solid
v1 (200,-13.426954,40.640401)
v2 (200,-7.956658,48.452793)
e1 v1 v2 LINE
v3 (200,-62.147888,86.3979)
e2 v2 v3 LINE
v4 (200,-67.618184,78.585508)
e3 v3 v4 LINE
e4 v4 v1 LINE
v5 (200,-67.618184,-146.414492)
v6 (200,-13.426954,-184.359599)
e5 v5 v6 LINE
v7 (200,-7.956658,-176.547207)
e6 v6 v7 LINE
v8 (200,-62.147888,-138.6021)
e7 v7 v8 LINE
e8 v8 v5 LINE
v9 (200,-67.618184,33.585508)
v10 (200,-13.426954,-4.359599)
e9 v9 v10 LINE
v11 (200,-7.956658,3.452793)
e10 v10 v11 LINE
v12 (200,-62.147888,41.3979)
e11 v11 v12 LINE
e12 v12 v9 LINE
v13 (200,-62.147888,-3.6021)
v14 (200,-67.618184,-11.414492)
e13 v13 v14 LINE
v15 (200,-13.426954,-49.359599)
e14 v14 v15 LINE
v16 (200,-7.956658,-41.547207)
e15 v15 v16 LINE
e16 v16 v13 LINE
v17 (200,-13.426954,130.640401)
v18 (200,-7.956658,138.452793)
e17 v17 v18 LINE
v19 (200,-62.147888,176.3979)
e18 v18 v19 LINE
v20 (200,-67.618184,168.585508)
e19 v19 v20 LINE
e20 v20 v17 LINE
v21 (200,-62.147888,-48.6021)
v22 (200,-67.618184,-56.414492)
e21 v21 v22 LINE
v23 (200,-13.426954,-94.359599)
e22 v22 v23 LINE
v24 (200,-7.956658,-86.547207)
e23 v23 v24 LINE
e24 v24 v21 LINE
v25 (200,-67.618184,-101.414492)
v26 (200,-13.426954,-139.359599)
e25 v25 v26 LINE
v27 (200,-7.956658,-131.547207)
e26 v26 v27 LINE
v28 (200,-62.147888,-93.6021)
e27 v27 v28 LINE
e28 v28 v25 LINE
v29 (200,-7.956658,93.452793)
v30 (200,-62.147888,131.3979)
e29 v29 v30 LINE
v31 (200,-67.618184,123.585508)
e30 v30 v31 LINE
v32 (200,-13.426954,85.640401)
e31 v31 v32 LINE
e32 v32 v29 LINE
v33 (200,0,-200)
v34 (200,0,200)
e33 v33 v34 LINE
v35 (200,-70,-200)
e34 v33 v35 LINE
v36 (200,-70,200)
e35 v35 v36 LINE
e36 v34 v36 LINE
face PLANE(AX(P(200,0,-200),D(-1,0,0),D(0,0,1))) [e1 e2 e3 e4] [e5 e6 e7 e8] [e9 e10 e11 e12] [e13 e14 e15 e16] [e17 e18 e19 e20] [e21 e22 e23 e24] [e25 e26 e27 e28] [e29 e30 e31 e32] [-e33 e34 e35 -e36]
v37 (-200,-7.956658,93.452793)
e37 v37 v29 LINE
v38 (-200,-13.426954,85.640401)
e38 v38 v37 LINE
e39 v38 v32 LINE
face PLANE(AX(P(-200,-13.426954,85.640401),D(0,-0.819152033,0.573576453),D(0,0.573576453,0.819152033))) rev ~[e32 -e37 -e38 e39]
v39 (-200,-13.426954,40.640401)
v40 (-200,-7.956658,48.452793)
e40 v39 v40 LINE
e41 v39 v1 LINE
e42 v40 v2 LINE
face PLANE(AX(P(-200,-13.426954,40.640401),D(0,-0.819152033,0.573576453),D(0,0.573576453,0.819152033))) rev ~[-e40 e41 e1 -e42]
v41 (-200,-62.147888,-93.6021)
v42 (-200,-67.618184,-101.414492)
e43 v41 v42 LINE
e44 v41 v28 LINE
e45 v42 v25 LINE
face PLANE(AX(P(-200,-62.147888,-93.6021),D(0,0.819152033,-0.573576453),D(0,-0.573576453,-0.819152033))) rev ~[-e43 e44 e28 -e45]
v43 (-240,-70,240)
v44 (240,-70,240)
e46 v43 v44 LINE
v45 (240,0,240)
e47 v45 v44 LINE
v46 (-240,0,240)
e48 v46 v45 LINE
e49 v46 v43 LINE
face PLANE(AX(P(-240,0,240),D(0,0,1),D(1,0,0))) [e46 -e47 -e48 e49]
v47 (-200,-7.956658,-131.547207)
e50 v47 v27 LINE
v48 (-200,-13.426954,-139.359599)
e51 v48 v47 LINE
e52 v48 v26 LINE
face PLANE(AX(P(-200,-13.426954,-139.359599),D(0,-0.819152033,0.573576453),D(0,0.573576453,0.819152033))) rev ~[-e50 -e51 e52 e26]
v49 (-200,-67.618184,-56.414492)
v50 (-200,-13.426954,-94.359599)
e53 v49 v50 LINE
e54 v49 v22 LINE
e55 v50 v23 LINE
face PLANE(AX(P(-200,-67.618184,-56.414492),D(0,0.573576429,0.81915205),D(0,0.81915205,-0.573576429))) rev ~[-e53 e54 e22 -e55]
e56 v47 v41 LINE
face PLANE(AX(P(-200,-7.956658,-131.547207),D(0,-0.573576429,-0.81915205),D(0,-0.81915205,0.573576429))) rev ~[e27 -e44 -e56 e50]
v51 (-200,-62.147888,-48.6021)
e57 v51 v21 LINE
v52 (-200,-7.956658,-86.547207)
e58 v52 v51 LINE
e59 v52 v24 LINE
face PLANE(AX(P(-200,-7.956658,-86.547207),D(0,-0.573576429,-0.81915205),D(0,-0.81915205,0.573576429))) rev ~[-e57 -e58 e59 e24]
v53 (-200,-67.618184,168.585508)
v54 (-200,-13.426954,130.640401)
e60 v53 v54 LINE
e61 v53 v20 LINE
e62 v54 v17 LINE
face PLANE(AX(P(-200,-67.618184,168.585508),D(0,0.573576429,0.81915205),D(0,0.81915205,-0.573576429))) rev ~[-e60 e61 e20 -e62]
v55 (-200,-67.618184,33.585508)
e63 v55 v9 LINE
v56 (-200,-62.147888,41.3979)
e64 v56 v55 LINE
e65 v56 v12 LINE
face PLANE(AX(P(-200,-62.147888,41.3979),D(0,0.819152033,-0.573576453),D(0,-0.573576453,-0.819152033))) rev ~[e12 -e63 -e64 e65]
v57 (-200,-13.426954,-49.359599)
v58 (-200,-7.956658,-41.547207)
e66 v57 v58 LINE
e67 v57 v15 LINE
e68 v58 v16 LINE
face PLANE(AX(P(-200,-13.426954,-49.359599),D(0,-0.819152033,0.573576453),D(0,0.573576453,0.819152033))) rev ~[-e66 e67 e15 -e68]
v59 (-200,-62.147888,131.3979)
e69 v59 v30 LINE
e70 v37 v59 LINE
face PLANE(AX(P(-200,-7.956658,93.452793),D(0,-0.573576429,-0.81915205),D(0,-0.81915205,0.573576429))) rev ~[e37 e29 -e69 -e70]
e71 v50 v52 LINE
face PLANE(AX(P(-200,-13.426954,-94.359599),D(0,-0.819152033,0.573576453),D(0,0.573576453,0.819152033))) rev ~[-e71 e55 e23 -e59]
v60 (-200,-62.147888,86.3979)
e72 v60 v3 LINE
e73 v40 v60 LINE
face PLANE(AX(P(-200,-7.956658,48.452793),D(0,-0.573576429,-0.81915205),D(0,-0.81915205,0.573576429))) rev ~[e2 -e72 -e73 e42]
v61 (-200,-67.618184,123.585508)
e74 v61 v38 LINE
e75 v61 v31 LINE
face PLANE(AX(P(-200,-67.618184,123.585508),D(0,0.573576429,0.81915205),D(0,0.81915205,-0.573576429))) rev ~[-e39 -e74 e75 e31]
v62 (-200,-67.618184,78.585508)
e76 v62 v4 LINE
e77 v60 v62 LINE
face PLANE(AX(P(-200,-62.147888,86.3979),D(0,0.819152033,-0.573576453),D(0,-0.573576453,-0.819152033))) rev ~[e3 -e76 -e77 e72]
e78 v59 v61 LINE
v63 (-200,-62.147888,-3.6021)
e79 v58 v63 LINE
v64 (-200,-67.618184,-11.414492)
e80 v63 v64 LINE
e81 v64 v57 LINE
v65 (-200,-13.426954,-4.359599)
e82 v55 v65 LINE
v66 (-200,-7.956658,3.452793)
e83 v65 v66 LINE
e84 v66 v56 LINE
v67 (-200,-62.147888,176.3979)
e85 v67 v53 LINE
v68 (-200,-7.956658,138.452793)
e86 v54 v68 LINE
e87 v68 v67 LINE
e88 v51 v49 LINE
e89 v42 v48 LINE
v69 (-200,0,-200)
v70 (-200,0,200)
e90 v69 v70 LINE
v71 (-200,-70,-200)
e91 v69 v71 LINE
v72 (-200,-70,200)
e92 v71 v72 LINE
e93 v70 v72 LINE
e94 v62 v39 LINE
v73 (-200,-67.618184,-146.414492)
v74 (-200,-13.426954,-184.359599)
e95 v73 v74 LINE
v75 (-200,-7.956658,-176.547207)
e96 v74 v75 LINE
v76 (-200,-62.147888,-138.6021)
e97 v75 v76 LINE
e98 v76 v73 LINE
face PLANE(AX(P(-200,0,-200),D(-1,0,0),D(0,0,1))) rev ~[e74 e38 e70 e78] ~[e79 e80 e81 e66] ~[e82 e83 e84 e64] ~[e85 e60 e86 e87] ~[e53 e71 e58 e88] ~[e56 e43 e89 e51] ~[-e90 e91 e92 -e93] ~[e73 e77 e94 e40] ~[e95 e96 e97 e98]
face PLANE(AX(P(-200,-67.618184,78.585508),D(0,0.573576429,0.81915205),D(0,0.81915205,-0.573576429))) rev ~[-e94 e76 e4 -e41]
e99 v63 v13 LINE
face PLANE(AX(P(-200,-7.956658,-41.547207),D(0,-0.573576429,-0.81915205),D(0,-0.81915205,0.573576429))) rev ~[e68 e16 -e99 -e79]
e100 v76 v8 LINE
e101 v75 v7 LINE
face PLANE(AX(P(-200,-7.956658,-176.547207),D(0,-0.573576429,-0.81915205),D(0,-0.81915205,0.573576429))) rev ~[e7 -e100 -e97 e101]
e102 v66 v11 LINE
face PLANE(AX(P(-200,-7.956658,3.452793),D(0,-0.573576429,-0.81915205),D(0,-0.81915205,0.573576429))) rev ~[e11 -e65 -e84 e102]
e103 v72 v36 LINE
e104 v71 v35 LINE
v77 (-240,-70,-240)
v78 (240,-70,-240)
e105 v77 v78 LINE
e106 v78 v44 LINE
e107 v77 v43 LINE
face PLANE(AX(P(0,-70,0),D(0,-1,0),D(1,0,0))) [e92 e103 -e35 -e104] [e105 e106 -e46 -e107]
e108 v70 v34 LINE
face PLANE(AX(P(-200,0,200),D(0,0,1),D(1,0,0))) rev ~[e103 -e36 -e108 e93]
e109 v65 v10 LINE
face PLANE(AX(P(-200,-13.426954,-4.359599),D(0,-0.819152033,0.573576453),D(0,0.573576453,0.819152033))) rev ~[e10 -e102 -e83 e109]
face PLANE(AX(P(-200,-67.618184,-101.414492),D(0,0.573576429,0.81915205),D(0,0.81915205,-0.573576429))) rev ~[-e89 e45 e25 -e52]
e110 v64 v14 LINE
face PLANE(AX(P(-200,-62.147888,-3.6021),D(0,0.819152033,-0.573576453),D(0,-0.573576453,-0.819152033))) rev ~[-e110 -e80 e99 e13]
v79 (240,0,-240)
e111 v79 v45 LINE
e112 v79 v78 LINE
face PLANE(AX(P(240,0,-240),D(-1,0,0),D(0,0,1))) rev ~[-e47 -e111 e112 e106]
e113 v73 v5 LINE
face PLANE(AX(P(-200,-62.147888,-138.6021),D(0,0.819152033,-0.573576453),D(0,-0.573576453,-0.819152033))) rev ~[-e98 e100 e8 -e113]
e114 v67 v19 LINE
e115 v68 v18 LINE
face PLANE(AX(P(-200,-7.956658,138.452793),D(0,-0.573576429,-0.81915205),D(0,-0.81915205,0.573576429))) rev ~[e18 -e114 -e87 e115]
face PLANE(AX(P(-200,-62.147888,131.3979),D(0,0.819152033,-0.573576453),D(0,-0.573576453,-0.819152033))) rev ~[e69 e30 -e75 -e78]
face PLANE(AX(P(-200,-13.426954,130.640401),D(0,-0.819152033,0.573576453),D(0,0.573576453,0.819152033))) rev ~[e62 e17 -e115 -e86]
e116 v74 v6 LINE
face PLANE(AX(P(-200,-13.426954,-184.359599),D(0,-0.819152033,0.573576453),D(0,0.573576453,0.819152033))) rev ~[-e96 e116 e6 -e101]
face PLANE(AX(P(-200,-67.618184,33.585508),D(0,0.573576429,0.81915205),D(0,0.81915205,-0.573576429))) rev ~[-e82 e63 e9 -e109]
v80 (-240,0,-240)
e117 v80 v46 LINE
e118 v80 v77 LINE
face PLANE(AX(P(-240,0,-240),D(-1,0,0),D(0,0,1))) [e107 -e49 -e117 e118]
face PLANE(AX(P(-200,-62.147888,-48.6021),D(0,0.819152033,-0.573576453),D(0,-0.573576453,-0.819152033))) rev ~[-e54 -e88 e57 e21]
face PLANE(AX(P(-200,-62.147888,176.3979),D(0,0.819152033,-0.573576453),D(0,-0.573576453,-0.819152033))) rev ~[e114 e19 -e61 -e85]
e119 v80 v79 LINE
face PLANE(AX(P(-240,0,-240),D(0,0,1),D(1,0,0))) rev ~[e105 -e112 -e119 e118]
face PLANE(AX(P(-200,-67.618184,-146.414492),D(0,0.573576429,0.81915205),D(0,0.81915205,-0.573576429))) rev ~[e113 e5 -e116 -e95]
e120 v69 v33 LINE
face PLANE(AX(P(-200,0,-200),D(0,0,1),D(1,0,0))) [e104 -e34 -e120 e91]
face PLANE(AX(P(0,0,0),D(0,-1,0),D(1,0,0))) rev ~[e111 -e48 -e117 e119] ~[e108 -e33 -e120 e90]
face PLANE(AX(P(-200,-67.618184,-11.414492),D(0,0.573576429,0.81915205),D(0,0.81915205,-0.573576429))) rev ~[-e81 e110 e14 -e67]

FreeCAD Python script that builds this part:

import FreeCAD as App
import Part
import Sketcher
Q = App.Units.Quantity


def add_polygon(sketch, points):
    """Adds a closed chain of lines whose ends are joined by coincident constraints."""
    first, n = sketch.GeometryCount, len(points)
    for a, b in zip(points, points[1:] + points[:1]):
        sketch.addGeometry(Part.LineSegment(App.Vector(*a, 0), App.Vector(*b, 0)), False)
    for i in range(n):
        sketch.addConstraint(Sketcher.Constraint("Coincident", first + i, 2, first + (i + 1) % n, 1))

doc = App.newDocument("Part")
body = doc.addObject("PartDesign::Body", "Body")

sketch1 = body.newObject("Sketcher::SketchObject", "Sketch")
sketch1.AttachmentSupport = (doc.getObject("XZ_Plane"), [""])
sketch1.MapMode = "FlatFace"
add_polygon(sketch1, [(-240, 240), (-240, -240), (240, -240), (240, 240)])
add_polygon(sketch1, [(200, -200), (-200, -200), (-200, 200), (200, 200)])
sketch1.addConstraint(Sketcher.Constraint("Vertical", 0))
sketch1.addConstraint(Sketcher.Constraint("Horizontal", 1))
sketch1.addConstraint(Sketcher.Constraint("Vertical", 2))
sketch1.addConstraint(Sketcher.Constraint("Horizontal", 3))
sketch1.addConstraint(Sketcher.Constraint("Horizontal", 4))
sketch1.addConstraint(Sketcher.Constraint("Vertical", 5))
sketch1.addConstraint(Sketcher.Constraint("Horizontal", 6))
sketch1.addConstraint(Sketcher.Constraint("Vertical", 7))
sketch1.addConstraint(Sketcher.Constraint("Symmetric", 0, 2, 2, 2, -1, 1))
sketch1.addConstraint(Sketcher.Constraint("Symmetric", 4, 2, 6, 2, -1, 1))
sketch1.addConstraint(Sketcher.Constraint("Equal", 3, 0))
sketch1.addConstraint(Sketcher.Constraint("Equal", 6, 5))
sketch1.addConstraint(Sketcher.Constraint("DistanceX", 1, 1, 1, 2, Q("480 mm")))
sketch1.addConstraint(Sketcher.Constraint("DistanceX", 4, 2, 4, 1, Q("400 mm")))
pad1 = body.newObject("PartDesign::Pad", "Pad")
pad1.Profile = sketch1
pad1.Length = 70

sketch2 = body.newObject("Sketcher::SketchObject", "Sketch001")
sketch2.AttachmentSupport = (doc.getObject("YZ_Plane"), [""])
sketch2.MapMode = "FlatFace"
sketch2.AttachmentOffset = App.Placement(App.Vector(0, 0, -200), App.Rotation())
add_polygon(sketch2, [(-8, 138), (-62, 176), (-68, 169), (-13, 131)])
add_polygon(sketch2, [(-62, 131), (-68, 124), (-13, 86), (-8, 93)])
add_polygon(sketch2, [(-62, 86), (-68, 79), (-13, 41), (-8, 48)])
add_polygon(sketch2, [(-62, 41), (-68, 34), (-13, -4), (-8, 3)])
add_polygon(sketch2, [(-62, -4), (-68, -11), (-13, -49), (-8, -42)])
add_polygon(sketch2, [(-62, -49), (-68, -56), (-13, -94), (-8, -87)])
add_polygon(sketch2, [(-62, -94), (-68, -101), (-13, -139), (-8, -132)])
add_polygon(sketch2, [(-62, -139), (-68, -146), (-13, -184), (-8, -177)])
sketch2.addConstraint(Sketcher.Constraint("Perpendicular", 0, 1))
sketch2.addConstraint(Sketcher.Constraint("Perpendicular", 1, 2))
sketch2.addConstraint(Sketcher.Constraint("Perpendicular", 2, 3))
sketch2.addConstraint(Sketcher.Constraint("Parallel", 3, 4))
sketch2.addConstraint(Sketcher.Constraint("Perpendicular", 4, 5))
sketch2.addConstraint(Sketcher.Constraint("Perpendicular", 5, 6))
sketch2.addConstraint(Sketcher.Constraint("Perpendicular", 6, 7))
sketch2.addConstraint(Sketcher.Constraint("Perpendicular", 7, 8))
sketch2.addConstraint(Sketcher.Constraint("Perpendicular", 8, 9))
sketch2.addConstraint(Sketcher.Constraint("Perpendicular", 9, 10))
sketch2.addConstraint(Sketcher.Constraint("Perpendicular", 10, 11))
sketch2.addConstraint(Sketcher.Constraint("Perpendicular", 11, 12))
sketch2.addConstraint(Sketcher.Constraint("Perpendicular", 12, 13))
sketch2.addConstraint(Sketcher.Constraint("Perpendicular", 13, 14))
sketch2.addConstraint(Sketcher.Constraint("Perpendicular", 14, 15))
sketch2.addConstraint(Sketcher.Constraint("Perpendicular", 15, 16))
sketch2.addConstraint(Sketcher.Constraint("Perpendicular", 16, 17))
sketch2.addConstraint(Sketcher.Constraint("Perpendicular", 17, 18))
sketch2.addConstraint(Sketcher.Constraint("Perpendicular", 18, 19))
sketch2.addConstraint(Sketcher.Constraint("Perpendicular", 19, 20))
sketch2.addConstraint(Sketcher.Constraint("Perpendicular", 20, 21))
sketch2.addConstraint(Sketcher.Constraint("Perpendicular", 21, 22))
sketch2.addConstraint(Sketcher.Constraint("Perpendicular", 22, 23))
sketch2.addConstraint(Sketcher.Constraint("Perpendicular", 23, 24))
sketch2.addConstraint(Sketcher.Constraint("Perpendicular", 24, 25))
sketch2.addConstraint(Sketcher.Constraint("Perpendicular", 25, 26))
sketch2.addConstraint(Sketcher.Constraint("Perpendicular", 26, 27))
sketch2.addConstraint(Sketcher.Constraint("Perpendicular", 27, 28))
sketch2.addConstraint(Sketcher.Constraint("Perpendicular", 28, 29))
sketch2.addConstraint(Sketcher.Constraint("Perpendicular", 29, 30))
sketch2.addConstraint(Sketcher.Constraint("Perpendicular", 30, 31))
sketch2.addConstraint(Sketcher.Constraint("Vertical", 1, 2, 4, 2))
sketch2.addConstraint(Sketcher.Constraint("Vertical", 2, 2, 5, 2))
sketch2.addConstraint(Sketcher.Constraint("Vertical", 3, 2, 6, 2))
sketch2.addConstraint(Sketcher.Constraint("Vertical", 4, 2, 8, 2))
sketch2.addConstraint(Sketcher.Constraint("Vertical", 5, 2, 9, 2))
sketch2.addConstraint(Sketcher.Constraint("Vertical", 6, 2, 10, 2))
sketch2.addConstraint(Sketcher.Constraint("Vertical", 8, 2, 12, 2))
sketch2.addConstraint(Sketcher.Constraint("Vertical", 9, 2, 13, 2))
sketch2.addConstraint(Sketcher.Constraint("Vertical", 10, 2, 14, 2))
sketch2.addConstraint(Sketcher.Constraint("Vertical", 12, 2, 16, 2))
sketch2.addConstraint(Sketcher.Constraint("Vertical", 13, 2, 17, 2))
sketch2.addConstraint(Sketcher.Constraint("Vertical", 14, 2, 18, 2))
sketch2.addConstraint(Sketcher.Constraint("Vertical", 16, 2, 20, 2))
sketch2.addConstraint(Sketcher.Constraint("Vertical", 17, 2, 21, 2))
sketch2.addConstraint(Sketcher.Constraint("Vertical", 18, 2, 22, 2))
sketch2.addConstraint(Sketcher.Constraint("Vertical", 20, 2, 24, 2))
sketch2.addConstraint(Sketcher.Constraint("Vertical", 21, 2, 25, 2))
sketch2.addConstraint(Sketcher.Constraint("Vertical", 22, 2, 26, 2))
sketch2.addConstraint(Sketcher.Constraint("Vertical", 24, 2, 28, 2))
sketch2.addConstraint(Sketcher.Constraint("Vertical", 25, 2, 29, 2))
sketch2.addConstraint(Sketcher.Constraint("Vertical", 26, 2, 30, 2))
sketch2.addConstraint(Sketcher.Constraint("Angle", 0, Q("145.000001 deg")))
sketch2.addConstraint(Sketcher.Constraint("DistanceY", 4, 2, 1, 2, Q("45 mm")))
sketch2.addConstraint(Sketcher.Constraint("DistanceY", 8, 2, 4, 2, Q("45 mm")))
sketch2.addConstraint(Sketcher.Constraint("DistanceY", 12, 2, 8, 2, Q("45 mm")))
sketch2.addConstraint(Sketcher.Constraint("DistanceY", 16, 2, 12, 2, Q("45 mm")))
sketch2.addConstraint(Sketcher.Constraint("DistanceY", 20, 2, 16, 2, Q("45 mm")))
sketch2.addConstraint(Sketcher.Constraint("DistanceY", 24, 2, 20, 2, Q("45 mm")))
sketch2.addConstraint(Sketcher.Constraint("DistanceY", 28, 2, 24, 2, Q("45 mm")))
sketch2.addConstraint(Sketcher.Constraint("DistanceY", -1, 1, 0, 2, Q("176.3979 mm")))
sketch2.addConstraint(Sketcher.Constraint("DistanceY", -1, 1, 2, 2, Q("130.640401 mm")))
sketch2.addConstraint(Sketcher.Constraint("Distance", 1, Q("9.53717 mm")))
sketch2.addConstraint(Sketcher.Constraint("DistanceX", 0, 2, -1, 1, Q("62.147888 mm")))
pad2 = body.newObject("PartDesign::Pad", "Pad001")
pad2.Profile = sketch2
pad2.Type = "UpToLast"

doc.recompute()
